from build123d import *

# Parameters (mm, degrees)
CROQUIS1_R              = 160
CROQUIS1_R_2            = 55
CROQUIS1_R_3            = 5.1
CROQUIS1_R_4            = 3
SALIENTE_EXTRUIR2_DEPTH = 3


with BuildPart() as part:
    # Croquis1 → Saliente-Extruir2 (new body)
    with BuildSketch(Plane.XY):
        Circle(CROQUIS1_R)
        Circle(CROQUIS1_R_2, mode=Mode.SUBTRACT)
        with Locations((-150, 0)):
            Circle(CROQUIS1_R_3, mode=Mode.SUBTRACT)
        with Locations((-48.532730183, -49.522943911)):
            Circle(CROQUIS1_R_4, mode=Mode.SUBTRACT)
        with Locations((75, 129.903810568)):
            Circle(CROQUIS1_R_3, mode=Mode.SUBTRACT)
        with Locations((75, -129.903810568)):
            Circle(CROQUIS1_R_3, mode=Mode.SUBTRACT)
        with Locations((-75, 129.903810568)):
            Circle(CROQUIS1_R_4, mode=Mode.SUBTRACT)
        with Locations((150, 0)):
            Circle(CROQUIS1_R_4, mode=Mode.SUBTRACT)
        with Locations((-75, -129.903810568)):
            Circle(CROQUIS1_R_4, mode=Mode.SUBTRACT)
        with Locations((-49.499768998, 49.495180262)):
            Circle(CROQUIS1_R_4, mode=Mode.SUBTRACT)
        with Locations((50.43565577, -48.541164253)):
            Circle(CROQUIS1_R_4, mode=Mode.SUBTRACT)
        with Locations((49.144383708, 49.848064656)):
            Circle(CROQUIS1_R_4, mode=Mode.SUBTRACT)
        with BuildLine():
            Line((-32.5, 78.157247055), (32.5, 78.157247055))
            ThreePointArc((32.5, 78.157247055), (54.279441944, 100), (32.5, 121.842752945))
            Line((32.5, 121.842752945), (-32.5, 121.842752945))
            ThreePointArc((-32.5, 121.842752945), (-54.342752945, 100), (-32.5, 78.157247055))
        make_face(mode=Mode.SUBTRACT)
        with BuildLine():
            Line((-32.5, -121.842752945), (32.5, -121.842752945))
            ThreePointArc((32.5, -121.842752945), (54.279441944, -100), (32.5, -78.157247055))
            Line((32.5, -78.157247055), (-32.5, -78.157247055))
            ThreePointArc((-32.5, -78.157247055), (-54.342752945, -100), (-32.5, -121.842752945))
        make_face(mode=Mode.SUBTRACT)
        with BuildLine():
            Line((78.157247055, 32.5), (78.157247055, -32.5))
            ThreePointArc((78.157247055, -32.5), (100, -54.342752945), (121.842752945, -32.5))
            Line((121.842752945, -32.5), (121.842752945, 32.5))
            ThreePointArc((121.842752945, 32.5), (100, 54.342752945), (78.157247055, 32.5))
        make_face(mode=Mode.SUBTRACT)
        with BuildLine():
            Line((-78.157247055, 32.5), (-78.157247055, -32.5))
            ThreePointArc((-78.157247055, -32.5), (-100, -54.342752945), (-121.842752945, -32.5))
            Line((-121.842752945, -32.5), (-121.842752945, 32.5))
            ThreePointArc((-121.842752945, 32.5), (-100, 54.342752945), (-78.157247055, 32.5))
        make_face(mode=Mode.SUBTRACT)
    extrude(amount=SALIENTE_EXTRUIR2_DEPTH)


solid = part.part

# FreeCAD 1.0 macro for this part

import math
import FreeCAD as App
import Part
import Sketcher
from FreeCAD import Vector
Q = App.Units.Quantity

doc = App.newDocument("Part")
body = doc.addObject("PartDesign::Body", "Body")

sketch1 = body.newObject("Sketcher::SketchObject", "Sketch")
sketch1.AttachmentSupport = (doc.getObject("XY_Plane"), [""])
sketch1.MapMode = "FlatFace"
sketch1.addGeometry(Part.Circle(Vector(0, 0, 0), Vector(0, 0, 1), 160), False)
sketch1.addGeometry(Part.Circle(Vector(-75, -129.903811, 0), Vector(0, 0, 1), 3), False)
sketch1.addGeometry(Part.Circle(Vector(-48.53273, -49.522944, 0), Vector(0, 0, 1), 3), False)
sketch1.addGeometry(Part.Circle(Vector(75, -129.903811, 0), Vector(0, 0, 1), 5.1), False)
sketch1.addGeometry(Part.LineSegment(Vector(32.5, -121.842753, 0), Vector(-32.5, -121.842753, 0)), False)
sketch1.addGeometry(Part.ArcOfCircle(Part.Circle(Vector(-32.5, -100, 0), Vector(0, 0, 1), 21.842753), math.radians(90), math.radians(270)), False)
sketch1.addGeometry(Part.LineSegment(Vector(-32.5, -78.157247, 0), Vector(32.5, -78.157247, 0)), False)
sketch1.addGeometry(Part.ArcOfCircle(Part.Circle(Vector(32.436597, -100, 0), Vector(0, 0, 1), 21.842845), math.radians(-89.833688), math.radians(89.833688)), False)
sketch1.addGeometry(Part.Circle(Vector(50.435656, -48.541164, 0), Vector(0, 0, 1), 3), False)
sketch1.addGeometry(Part.Circle(Vector(-150, 0, 0), Vector(0, 0, 1), 5.1), False)
sketch1.addGeometry(Part.ArcOfCircle(Part.Circle(Vector(-100, 32.5, 0), Vector(0, 0, 1), 21.842753), math.radians(0), math.radians(180)), False)
sketch1.addGeometry(Part.LineSegment(Vector(-78.157247, 32.5, 0), Vector(-78.157247, -32.5, 0)), False)
sketch1.addGeometry(Part.ArcOfCircle(Part.Circle(Vector(-100, -32.5, 0), Vector(0, 0, 1), 21.842753), math.radians(180), math.radians(360)), False)
sketch1.addGeometry(Part.LineSegment(Vector(-121.842753, -32.5, 0), Vector(-121.842753, 32.5, 0)), False)
sketch1.addGeometry(Part.Circle(Vector(-49.499769, 49.49518, 0), Vector(0, 0, 1), 3), False)
sketch1.addGeometry(Part.Circle(Vector(-75, 129.903811, 0), Vector(0, 0, 1), 3), False)
sketch1.addGeometry(Part.Circle(Vector(0, 0, 0), Vector(0, 0, 1), 55), False)
sketch1.addGeometry(Part.Circle(Vector(49.144384, 49.848065, 0), Vector(0, 0, 1), 3), False)
sketch1.addGeometry(Part.LineSegment(Vector(78.157247, -32.5, 0), Vector(78.157247, 32.5, 0)), False)
sketch1.addGeometry(Part.ArcOfCircle(Part.Circle(Vector(100, 32.5, 0), Vector(0, 0, 1), 21.842753), math.radians(0), math.radians(180)), False)
sketch1.addGeometry(Part.LineSegment(Vector(121.842753, 32.5, 0), Vector(121.842753, -32.5, 0)), False)
sketch1.addGeometry(Part.ArcOfCircle(Part.Circle(Vector(100, -32.5, 0), Vector(0, 0, 1), 21.842753), math.radians(180), math.radians(360)), False)
sketch1.addGeometry(Part.Circle(Vector(150, 0, 0), Vector(0, 0, 1), 3), False)
sketch1.addGeometry(Part.LineSegment(Vector(32.5, 78.157247, 0), Vector(-32.5, 78.157247, 0)), False)
sketch1.addGeometry(Part.ArcOfCircle(Part.Circle(Vector(-32.5, 100, 0), Vector(0, 0, 1), 21.842753), math.radians(90), math.radians(270)), False)
sketch1.addGeometry(Part.LineSegment(Vector(-32.5, 121.842753, 0), Vector(32.5, 121.842753, 0)), False)
sketch1.addGeometry(Part.ArcOfCircle(Part.Circle(Vector(32.436597, 100, 0), Vector(0, 0, 1), 21.842845), math.radians(-89.833688), math.radians(89.833688)), False)
sketch1.addGeometry(Part.Circle(Vector(75, 129.903811, 0), Vector(0, 0, 1), 5.1), False)
sketch1.addConstraint(Sketcher.Constraint("Tangent", 4, 2, 5, 2))
sketch1.addConstraint(Sketcher.Constraint("Tangent", 5, 1, 6, 1))
sketch1.addConstraint(Sketcher.Constraint("Coincident", 6, 2, 7, 2))
sketch1.addConstraint(Sketcher.Constraint("Coincident", 7, 1, 4, 1))
sketch1.addConstraint(Sketcher.Constraint("Tangent", 10, 1, 11, 1))
sketch1.addConstraint(Sketcher.Constraint("Tangent", 11, 2, 12, 2))
sketch1.addConstraint(Sketcher.Constraint("Tangent", 12, 1, 13, 1))
sketch1.addConstraint(Sketcher.Constraint("Tangent", 13, 2, 10, 2))
sketch1.addConstraint(Sketcher.Constraint("Tangent", 18, 2, 19, 2))
sketch1.addConstraint(Sketcher.Constraint("Tangent", 19, 1, 20, 1))
sketch1.addConstraint(Sketcher.Constraint("Tangent", 20, 2, 21, 2))
sketch1.addConstraint(Sketcher.Constraint("Tangent", 21, 1, 18, 1))
sketch1.addConstraint(Sketcher.Constraint("Tangent", 23, 2, 24, 2))
sketch1.addConstraint(Sketcher.Constraint("Tangent", 24, 1, 25, 1))
sketch1.addConstraint(Sketcher.Constraint("Coincident", 25, 2, 26, 2))
sketch1.addConstraint(Sketcher.Constraint("Coincident", 26, 1, 23, 1))
sketch1.addConstraint(Sketcher.Constraint("Horizontal", 4))
sketch1.addConstraint(Sketcher.Constraint("Horizontal", 6))
sketch1.addConstraint(Sketcher.Constraint("Vertical", 11))
sketch1.addConstraint(Sketcher.Constraint("Vertical", 13))
sketch1.addConstraint(Sketcher.Constraint("Vertical", 18))
sketch1.addConstraint(Sketcher.Constraint("Vertical", 20))
sketch1.addConstraint(Sketcher.Constraint("Horizontal", 23))
sketch1.addConstraint(Sketcher.Constraint("Horizontal", 25))
sketch1.addConstraint(Sketcher.Constraint("Coincident", 0, 3, -1, 1))
sketch1.addConstraint(Sketcher.Constraint("Coincident", 16, 3, -1, 1))
sketch1.addConstraint(Sketcher.Constraint("Equal", 1, 2))
sketch1.addConstraint(Sketcher.Constraint("Equal", 2, 8))
sketch1.addConstraint(Sketcher.Constraint("Equal", 3, 9))
sketch1.addConstraint(Sketcher.Constraint("Equal", 5, 10))
sketch1.addConstraint(Sketcher.Constraint("Equal", 8, 14))
sketch1.addConstraint(Sketcher.Constraint("Equal", 14, 15))
sketch1.addConstraint(Sketcher.Constraint("Equal", 15, 17))
sketch1.addConstraint(Sketcher.Constraint("Equal", 12, 19))
sketch1.addConstraint(Sketcher.Constraint("Equal", 17, 22))
sketch1.addConstraint(Sketcher.Constraint("Equal", 21, 24))
sketch1.addConstraint(Sketcher.Constraint("Equal", 7, 26))
sketch1.addConstraint(Sketcher.Constraint("Equal", 9, 27))
sketch1.addConstraint(Sketcher.Constraint("Symmetric", 3, 3, 15, 3, -1, 1))
sketch1.addConstraint(Sketcher.Constraint("Symmetric", 12, 3, 19, 3, -1, 1))
sketch1.addConstraint(Sketcher.Constraint("Symmetric", 9, 3, 22, 3, -1, 1))
sketch1.addConstraint(Sketcher.Constraint("Symmetric", 1, 3, 27, 3, -1, 1))
sketch1.addConstraint(Sketcher.Constraint("Symmetric", 6, 2, 23, 2, -1, 1))
sketch1.addConstraint(Sketcher.Constraint("Symmetric", 1, 3, 3, 3, -2))
sketch1.addConstraint(Sketcher.Constraint("PointOnObject", 9, 3, -1))
sketch1.addConstraint(Sketcher.Constraint("Horizontal", 10, 3, 19, 3))
sketch1.addConstraint(Sketcher.Constraint("Horizontal", 12, 3, 21, 3))
sketch1.addConstraint(Sketcher.Constraint("Vertical", 5, 3, 24, 3))
sketch1.addConstraint(Sketcher.Constraint("Vertical", 7, 3, 26, 3))
sketch1.addConstraint(Sketcher.Constraint("Vertical", 6, 2, 7, 1))
sketch1.addConstraint(Sketcher.Constraint("Vertical", 7, 1, 25, 2))
sketch1.addConstraint(Sketcher.Constraint("Equal", 25, 11))
sketch1.addConstraint(Sketcher.Constraint("Diameter", 0, Q("320 mm")))
sketch1.addConstraint(Sketcher.Constraint("Diameter", 1, Q("6 mm")))
sketch1.addConstraint(Sketcher.Constraint("Diameter", 16, Q("110 mm")))
sketch1.addConstraint(Sketcher.Constraint("Diameter", 3, Q("10.2 mm")))
sketch1.addConstraint(Sketcher.Constraint("DistanceX", 4, 2, 4, 1, Q("65 mm")))
sketch1.addConstraint(Sketcher.Constraint("DistanceX", 1, 3, -1, 1, Q("75 mm")))
sketch1.addConstraint(Sketcher.Constraint("DistanceY", 5, 3, -1, 1, Q("100 mm")))
sketch1.addConstraint(Sketcher.Constraint("DistanceX", 9, 3, -1, 1, Q("150 mm")))
sketch1.addConstraint(Sketcher.Constraint("DistanceX", 10, 3, -1, 1, Q("100 mm")))
sketch1.addConstraint(Sketcher.Constraint("Radius", 5, Q("21.842753 mm")))
sketch1.addConstraint(Sketcher.Constraint("Radius", 7, Q("21.842845 mm")))
sketch1.addConstraint(Sketcher.Constraint("DistanceY", 1, 3, -1, 1, Q("129.903811 mm")))
sketch1.addConstraint(Sketcher.Constraint("DistanceX", 2, 3, -1, 1, Q("48.53273 mm")))
sketch1.addConstraint(Sketcher.Constraint("DistanceX", 14, 3, -1, 1, Q("49.499769 mm")))
sketch1.addConstraint(Sketcher.Constraint("DistanceY", -1, 1, 14, 3, Q("49.49518 mm")))
sketch1.addConstraint(Sketcher.Constraint("DistanceX", 7, 3, 8, 3, Q("17.999059 mm")))
sketch1.addConstraint(Sketcher.Constraint("DistanceY", 2, 3, 8, 3, Q("0.98178 mm")))
sketch1.addConstraint(Sketcher.Constraint("DistanceY", 8, 3, 17, 3, Q("98.389229 mm")))
sketch1.addConstraint(Sketcher.Constraint("DistanceY", 4, 2, 2, 3, Q("72.319809 mm")))
sketch1.addConstraint(Sketcher.Constraint("DistanceX", 17, 3, 19, 1, Q("72.698369 mm")))
pad1 = body.newObject("PartDesign::Pad", "Pad")
pad1.Profile = sketch1
pad1.Length = 3

doc.recompute()
